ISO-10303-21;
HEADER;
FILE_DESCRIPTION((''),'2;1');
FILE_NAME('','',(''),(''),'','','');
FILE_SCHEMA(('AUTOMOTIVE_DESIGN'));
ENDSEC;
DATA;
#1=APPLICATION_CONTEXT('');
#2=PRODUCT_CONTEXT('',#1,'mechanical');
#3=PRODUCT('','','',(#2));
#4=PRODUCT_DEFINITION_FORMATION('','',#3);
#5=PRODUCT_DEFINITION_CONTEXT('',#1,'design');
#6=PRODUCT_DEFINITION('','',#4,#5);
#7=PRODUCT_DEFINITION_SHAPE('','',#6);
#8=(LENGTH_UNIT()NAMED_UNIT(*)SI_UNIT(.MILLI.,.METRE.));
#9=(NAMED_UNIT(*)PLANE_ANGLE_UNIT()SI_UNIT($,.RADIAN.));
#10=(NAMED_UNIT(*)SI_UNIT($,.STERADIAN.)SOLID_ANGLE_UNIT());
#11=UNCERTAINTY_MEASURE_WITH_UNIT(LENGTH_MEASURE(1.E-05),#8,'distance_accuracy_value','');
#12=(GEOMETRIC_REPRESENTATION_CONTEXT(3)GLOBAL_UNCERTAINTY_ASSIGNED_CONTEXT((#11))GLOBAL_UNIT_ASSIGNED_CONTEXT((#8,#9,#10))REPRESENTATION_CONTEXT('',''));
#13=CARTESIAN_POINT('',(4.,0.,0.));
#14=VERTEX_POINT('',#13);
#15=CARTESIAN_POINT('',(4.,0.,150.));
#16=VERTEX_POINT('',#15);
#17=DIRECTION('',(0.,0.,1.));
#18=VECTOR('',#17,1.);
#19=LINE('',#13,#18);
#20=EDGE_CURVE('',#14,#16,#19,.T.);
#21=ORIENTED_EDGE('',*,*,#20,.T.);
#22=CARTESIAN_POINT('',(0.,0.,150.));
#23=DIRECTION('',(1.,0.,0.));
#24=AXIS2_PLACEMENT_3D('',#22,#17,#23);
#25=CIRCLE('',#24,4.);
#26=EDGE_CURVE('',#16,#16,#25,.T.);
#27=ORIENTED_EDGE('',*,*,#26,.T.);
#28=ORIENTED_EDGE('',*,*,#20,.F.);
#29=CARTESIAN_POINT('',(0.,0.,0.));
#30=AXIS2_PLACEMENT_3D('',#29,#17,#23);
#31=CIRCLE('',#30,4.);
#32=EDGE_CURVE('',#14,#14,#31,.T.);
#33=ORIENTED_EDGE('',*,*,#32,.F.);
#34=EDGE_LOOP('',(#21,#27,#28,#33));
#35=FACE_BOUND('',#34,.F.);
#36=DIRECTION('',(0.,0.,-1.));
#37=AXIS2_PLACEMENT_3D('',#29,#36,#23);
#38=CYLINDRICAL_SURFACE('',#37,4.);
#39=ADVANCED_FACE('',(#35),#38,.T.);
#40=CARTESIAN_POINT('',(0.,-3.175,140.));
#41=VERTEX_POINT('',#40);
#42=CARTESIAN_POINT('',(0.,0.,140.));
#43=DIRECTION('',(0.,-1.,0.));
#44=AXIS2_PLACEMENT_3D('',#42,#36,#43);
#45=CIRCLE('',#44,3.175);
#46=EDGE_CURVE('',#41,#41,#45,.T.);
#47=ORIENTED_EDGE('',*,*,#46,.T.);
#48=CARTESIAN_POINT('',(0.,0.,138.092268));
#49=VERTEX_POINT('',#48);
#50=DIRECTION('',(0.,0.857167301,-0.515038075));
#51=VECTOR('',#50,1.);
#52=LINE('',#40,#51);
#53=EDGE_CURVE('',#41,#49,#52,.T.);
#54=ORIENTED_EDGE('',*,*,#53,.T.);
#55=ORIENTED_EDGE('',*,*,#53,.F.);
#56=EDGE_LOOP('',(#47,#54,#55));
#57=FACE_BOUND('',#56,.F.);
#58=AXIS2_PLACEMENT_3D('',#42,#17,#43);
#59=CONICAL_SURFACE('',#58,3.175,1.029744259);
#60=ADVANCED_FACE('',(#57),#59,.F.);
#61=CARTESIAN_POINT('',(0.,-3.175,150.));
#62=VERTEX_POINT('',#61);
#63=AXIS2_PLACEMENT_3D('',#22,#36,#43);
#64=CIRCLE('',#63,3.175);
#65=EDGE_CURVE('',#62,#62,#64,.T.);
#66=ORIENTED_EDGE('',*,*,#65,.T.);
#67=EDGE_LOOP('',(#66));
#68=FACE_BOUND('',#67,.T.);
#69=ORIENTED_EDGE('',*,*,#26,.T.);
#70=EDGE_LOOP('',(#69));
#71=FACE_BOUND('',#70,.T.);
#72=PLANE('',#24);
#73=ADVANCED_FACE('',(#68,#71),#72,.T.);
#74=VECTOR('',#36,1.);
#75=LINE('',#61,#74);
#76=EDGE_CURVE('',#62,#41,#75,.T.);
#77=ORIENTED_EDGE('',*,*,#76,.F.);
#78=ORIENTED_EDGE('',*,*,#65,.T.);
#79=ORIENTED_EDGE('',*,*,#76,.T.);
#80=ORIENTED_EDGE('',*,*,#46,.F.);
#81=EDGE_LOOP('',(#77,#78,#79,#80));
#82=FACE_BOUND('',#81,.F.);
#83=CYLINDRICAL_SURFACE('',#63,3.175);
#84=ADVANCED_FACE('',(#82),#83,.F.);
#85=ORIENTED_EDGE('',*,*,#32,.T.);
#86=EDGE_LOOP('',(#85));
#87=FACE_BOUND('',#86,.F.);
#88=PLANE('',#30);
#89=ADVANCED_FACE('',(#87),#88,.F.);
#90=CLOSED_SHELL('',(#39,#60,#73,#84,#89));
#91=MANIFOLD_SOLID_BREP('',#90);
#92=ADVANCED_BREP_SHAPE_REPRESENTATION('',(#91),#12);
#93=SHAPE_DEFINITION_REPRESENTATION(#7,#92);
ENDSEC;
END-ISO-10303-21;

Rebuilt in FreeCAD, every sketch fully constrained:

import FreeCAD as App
import Part
import Sketcher

V = App.Vector

doc = App.newDocument("Part")
body = doc.addObject("PartDesign::Body", "Body")

sketch1 = doc.addObject("Sketcher::SketchObject", "Sketch")
body.addObject(sketch1)
sketch1.AttachmentSupport = (doc.XY_Plane, [""])
sketch1.MapMode = "FlatFace"
sketch1.addGeometry(Part.Circle(V(0, 0, 0), V(0, 0, 1), 4), False)
sketch1.addConstraint(Sketcher.Constraint("Coincident", 0, 3, -1, 1))
sketch1.addConstraint(Sketcher.Constraint("Diameter", 0, 8.0))
pad1 = doc.addObject("PartDesign::Pad", "Pad")
body.addObject(pad1)
pad1.Profile = sketch1
pad1.Length = 150

sketch2 = doc.addObject("Sketcher::SketchObject", "Sketch001")
body.addObject(sketch2)
sketch2.AttachmentSupport = (doc.XY_Plane, [""])
sketch2.MapMode = "FlatFace"
sketch2.AttachmentOffset = App.Placement(V(0, 0, 150), App.Rotation())
sketch2.addGeometry(Part.Circle(V(0, 0, 0), V(0, 0, 1), 3.2), False)
sketch2.addConstraint(Sketcher.Constraint("Coincident", 0, 3, -1, 1))
sketch2.addConstraint(Sketcher.Constraint("Diameter", 0, 6.35))
doc.recompute()
hole = doc.addObject("PartDesign::Hole", "Hole")
body.addObject(hole)
hole.Profile = sketch2
hole.ThreadType = "None"
hole.Diameter = 6.35
hole.DepthType = "Dimension"
hole.Depth = 10
hole.DrillPoint = "Angled"
hole.DrillPointAngle = 118

doc.recompute()
